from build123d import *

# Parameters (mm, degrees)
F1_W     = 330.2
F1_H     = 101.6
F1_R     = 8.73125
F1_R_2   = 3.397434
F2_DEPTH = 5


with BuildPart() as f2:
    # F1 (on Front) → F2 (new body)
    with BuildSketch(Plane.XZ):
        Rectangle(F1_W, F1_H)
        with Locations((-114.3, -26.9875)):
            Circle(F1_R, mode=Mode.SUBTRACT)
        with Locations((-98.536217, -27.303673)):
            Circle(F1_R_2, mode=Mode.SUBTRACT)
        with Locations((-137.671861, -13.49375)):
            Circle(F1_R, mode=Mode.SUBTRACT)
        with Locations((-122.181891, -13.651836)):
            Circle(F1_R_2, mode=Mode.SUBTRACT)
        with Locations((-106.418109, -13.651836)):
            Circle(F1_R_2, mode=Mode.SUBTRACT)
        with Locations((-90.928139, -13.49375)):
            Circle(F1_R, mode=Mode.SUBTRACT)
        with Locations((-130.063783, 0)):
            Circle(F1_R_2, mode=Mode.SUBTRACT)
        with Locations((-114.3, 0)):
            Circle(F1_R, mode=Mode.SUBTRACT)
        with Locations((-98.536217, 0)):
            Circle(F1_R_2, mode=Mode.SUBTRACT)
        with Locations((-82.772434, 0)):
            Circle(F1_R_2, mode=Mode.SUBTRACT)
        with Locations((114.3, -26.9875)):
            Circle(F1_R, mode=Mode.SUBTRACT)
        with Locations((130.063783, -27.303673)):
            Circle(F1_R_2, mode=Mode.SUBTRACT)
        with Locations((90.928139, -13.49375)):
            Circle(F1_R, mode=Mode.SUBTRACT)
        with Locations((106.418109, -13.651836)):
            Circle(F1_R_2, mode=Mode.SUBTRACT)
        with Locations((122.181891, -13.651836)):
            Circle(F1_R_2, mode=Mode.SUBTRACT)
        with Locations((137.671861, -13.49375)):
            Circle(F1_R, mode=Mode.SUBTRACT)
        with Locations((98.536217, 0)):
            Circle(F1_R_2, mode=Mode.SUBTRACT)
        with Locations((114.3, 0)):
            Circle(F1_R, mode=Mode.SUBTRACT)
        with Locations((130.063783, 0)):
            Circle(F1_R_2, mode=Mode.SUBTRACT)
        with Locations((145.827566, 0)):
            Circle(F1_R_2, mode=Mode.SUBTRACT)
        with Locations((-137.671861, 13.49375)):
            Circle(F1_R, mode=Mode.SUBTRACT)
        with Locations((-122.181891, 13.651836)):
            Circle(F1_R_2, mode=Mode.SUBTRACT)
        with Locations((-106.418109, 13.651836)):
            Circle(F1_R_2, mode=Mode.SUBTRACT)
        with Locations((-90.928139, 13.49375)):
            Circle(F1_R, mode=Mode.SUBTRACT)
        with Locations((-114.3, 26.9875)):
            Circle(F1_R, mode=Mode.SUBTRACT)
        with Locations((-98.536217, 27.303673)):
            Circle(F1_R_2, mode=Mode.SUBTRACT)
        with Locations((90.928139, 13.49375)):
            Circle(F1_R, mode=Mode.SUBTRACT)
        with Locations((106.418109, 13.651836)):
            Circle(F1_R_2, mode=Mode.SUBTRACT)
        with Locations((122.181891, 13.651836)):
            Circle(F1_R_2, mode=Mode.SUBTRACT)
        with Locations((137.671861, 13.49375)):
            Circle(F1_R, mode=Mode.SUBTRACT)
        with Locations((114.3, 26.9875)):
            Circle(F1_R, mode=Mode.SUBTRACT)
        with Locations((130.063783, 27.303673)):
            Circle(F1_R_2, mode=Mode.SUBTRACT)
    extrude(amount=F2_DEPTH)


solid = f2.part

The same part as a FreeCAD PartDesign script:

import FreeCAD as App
import Part
import Sketcher
Q = App.Units.Quantity


def add_polygon(sketch, points):
    """Adds a closed chain of lines whose ends are joined by coincident constraints."""
    first, n = sketch.GeometryCount, len(points)
    for a, b in zip(points, points[1:] + points[:1]):
        sketch.addGeometry(Part.LineSegment(App.Vector(*a, 0), App.Vector(*b, 0)), False)
    for i in range(n):
        sketch.addConstraint(Sketcher.Constraint("Coincident", first + i, 2, first + (i + 1) % n, 1))

doc = App.newDocument("Part")
params = doc.addObject("Spreadsheet::Sheet", "Params")
for row, (alias, value) in enumerate([
    ("sketch1_width", "13 in"),
    ("sketch1_height", "4 in"),
    ("sketch1_diameter", "0.6875 in"),
    ("pad1_length", "5 mm"),
], start=1):
    params.set(f"A{row}", alias)
    params.set(f"B{row}", "=" + value)
    params.setAlias(f"B{row}", alias)

body = doc.addObject("PartDesign::Body", "Body")

# Sketch on XZ plane
sketch1 = body.newObject("Sketcher::SketchObject", "Sketch")
sketch1.AttachmentSupport = (doc.getObject("XZ_Plane"), [""])
sketch1.MapMode = "FlatFace"
add_polygon(sketch1, [(-165.1, 50.8), (-165.1, -50.8), (165.1, -50.8), (165.1, 50.8)])  # lines 0-3
sketch1.addGeometry(Part.Circle(App.Vector(-114.3, -27, 0), App.Vector(0, 0, 1), 8.7), False)  # 4
sketch1.addGeometry(Part.Circle(App.Vector(-98.5, -27.3, 0), App.Vector(0, 0, 1), 3.4), False)  # 5
sketch1.addGeometry(Part.Circle(App.Vector(-137.7, -13.5, 0), App.Vector(0, 0, 1), 8.7), False)  # 6
sketch1.addGeometry(Part.Circle(App.Vector(-122.2, -13.7, 0), App.Vector(0, 0, 1), 3.4), False)  # 7
sketch1.addGeometry(Part.Circle(App.Vector(-106.4, -13.7, 0), App.Vector(0, 0, 1), 3.4), False)  # 8
sketch1.addGeometry(Part.Circle(App.Vector(-90.9, -13.5, 0), App.Vector(0, 0, 1), 8.7), False)  # 9
sketch1.addGeometry(Part.Circle(App.Vector(114.3, -27, 0), App.Vector(0, 0, 1), 8.7), False)  # 10
sketch1.addGeometry(Part.Circle(App.Vector(130.1, -27.3, 0), App.Vector(0, 0, 1), 3.4), False)  # 11
sketch1.addGeometry(Part.Circle(App.Vector(90.9, -13.5, 0), App.Vector(0, 0, 1), 8.7), False)  # 12
sketch1.addGeometry(Part.Circle(App.Vector(106.4, -13.7, 0), App.Vector(0, 0, 1), 3.4), False)  # 13
sketch1.addGeometry(Part.Circle(App.Vector(122.2, -13.7, 0), App.Vector(0, 0, 1), 3.4), False)  # 14
sketch1.addGeometry(Part.Circle(App.Vector(137.7, -13.5, 0), App.Vector(0, 0, 1), 8.7), False)  # 15
sketch1.addGeometry(Part.Circle(App.Vector(-130.1, 0, 0), App.Vector(0, 0, 1), 3.4), False)  # 16
sketch1.addGeometry(Part.Circle(App.Vector(-114.3, 0, 0), App.Vector(0, 0, 1), 8.7), False)  # 17
sketch1.addGeometry(Part.Circle(App.Vector(-98.5, 0, 0), App.Vector(0, 0, 1), 3.4), False)  # 18
sketch1.addGeometry(Part.Circle(App.Vector(-82.8, 0, 0), App.Vector(0, 0, 1), 3.4), False)  # 19
sketch1.addGeometry(Part.Circle(App.Vector(-137.7, 13.5, 0), App.Vector(0, 0, 1), 8.7), False)  # 20
sketch1.addGeometry(Part.Circle(App.Vector(-122.2, 13.7, 0), App.Vector(0, 0, 1), 3.4), False)  # 21
sketch1.addGeometry(Part.Circle(App.Vector(-106.4, 13.7, 0), App.Vector(0, 0, 1), 3.4), False)  # 22
sketch1.addGeometry(Part.Circle(App.Vector(-90.9, 13.5, 0), App.Vector(0, 0, 1), 8.7), False)  # 23
sketch1.addGeometry(Part.Circle(App.Vector(-114.3, 27, 0), App.Vector(0, 0, 1), 8.7), False)  # 24
sketch1.addGeometry(Part.Circle(App.Vector(-98.5, 27.3, 0), App.Vector(0, 0, 1), 3.4), False)  # 25
sketch1.addGeometry(Part.Circle(App.Vector(98.5, 0, 0), App.Vector(0, 0, 1), 3.4), False)  # 26
sketch1.addGeometry(Part.Circle(App.Vector(114.3, 0, 0), App.Vector(0, 0, 1), 8.7), False)  # 27
sketch1.addGeometry(Part.Circle(App.Vector(130.1, 0, 0), App.Vector(0, 0, 1), 3.4), False)  # 28
sketch1.addGeometry(Part.Circle(App.Vector(145.8, 0, 0), App.Vector(0, 0, 1), 3.4), False)  # 29
sketch1.addGeometry(Part.Circle(App.Vector(90.9, 13.5, 0), App.Vector(0, 0, 1), 8.7), False)  # 30
sketch1.addGeometry(Part.Circle(App.Vector(106.4, 13.7, 0), App.Vector(0, 0, 1), 3.4), False)  # 31
sketch1.addGeometry(Part.Circle(App.Vector(122.2, 13.7, 0), App.Vector(0, 0, 1), 3.4), False)  # 32
sketch1.addGeometry(Part.Circle(App.Vector(137.7, 13.5, 0), App.Vector(0, 0, 1), 8.7), False)  # 33
sketch1.addGeometry(Part.Circle(App.Vector(114.3, 27, 0), App.Vector(0, 0, 1), 8.7), False)  # 34
sketch1.addGeometry(Part.Circle(App.Vector(130.1, 27.3, 0), App.Vector(0, 0, 1), 3.4), False)  # 35
sketch1.addConstraint([
    Sketcher.Constraint("Vertical", 0),
    Sketcher.Constraint("Horizontal", 1),
    Sketcher.Constraint("Vertical", 2),
    Sketcher.Constraint("Horizontal", 3),
    Sketcher.Constraint("Equal", 4, 6),
    Sketcher.Constraint("Equal", 5, 7),
    Sketcher.Constraint("Equal", 7, 8),
    Sketcher.Constraint("Equal", 6, 9),
    Sketcher.Constraint("Equal", 9, 10),
    Sketcher.Constraint("Equal", 8, 11),
    Sketcher.Constraint("Equal", 10, 12),
    Sketcher.Constraint("Equal", 11, 13),
    Sketcher.Constraint("Equal", 13, 14),
    Sketcher.Constraint("Equal", 12, 15),
    Sketcher.Constraint("Equal", 14, 16),
    Sketcher.Constraint("Equal", 15, 17),
    Sketcher.Constraint("Equal", 16, 18),
    Sketcher.Constraint("Equal", 18, 19),
    Sketcher.Constraint("Equal", 17, 20),
    Sketcher.Constraint("Equal", 19, 21),
    Sketcher.Constraint("Equal", 21, 22),
    Sketcher.Constraint("Equal", 20, 23),
    Sketcher.Constraint("Equal", 23, 24),
    Sketcher.Constraint("Equal", 22, 25),
    Sketcher.Constraint("Equal", 25, 26),
    Sketcher.Constraint("Equal", 24, 27),
    Sketcher.Constraint("Equal", 26, 28),
    Sketcher.Constraint("Equal", 28, 29),
    Sketcher.Constraint("Equal", 27, 30),
    Sketcher.Constraint("Equal", 29, 31),
    Sketcher.Constraint("Equal", 31, 32),
    Sketcher.Constraint("Equal", 30, 33),
    Sketcher.Constraint("Equal", 33, 34),
    Sketcher.Constraint("Equal", 32, 35),
    Sketcher.Constraint("Symmetric", 15, 3, 20, 3, -1, 1),
    Sketcher.Constraint("Symmetric", 14, 3, 21, 3, -1, 1),
    Sketcher.Constraint("Symmetric", 13, 3, 22, 3, -1, 1),
    Sketcher.Constraint("Symmetric", 12, 3, 23, 3, -1, 1),
    Sketcher.Constraint("Symmetric", 10, 3, 24, 3, -1, 1),
    Sketcher.Constraint("Symmetric", 18, 3, 26, 3, -1, 1),
    Sketcher.Constraint("Symmetric", 17, 3, 27, 3, -1, 1),
    Sketcher.Constraint("Symmetric", 16, 3, 28, 3, -1, 1),
    Sketcher.Constraint("Symmetric", 9, 3, 30, 3, -1, 1),
    Sketcher.Constraint("Symmetric", 8, 3, 31, 3, -1, 1),
    Sketcher.Constraint("Symmetric", 7, 3, 32, 3, -1, 1),
    Sketcher.Constraint("Symmetric", 6, 3, 33, 3, -1, 1),
    Sketcher.Constraint("Symmetric", 4, 3, 34, 3, -1, 1),
    Sketcher.Constraint("Symmetric", 0, 2, 2, 2, -1, 1),
    Sketcher.Constraint("Symmetric", 4, 3, 10, 3, -2),
    Sketcher.Constraint("Symmetric", 9, 3, 12, 3, -2),
    Sketcher.Constraint("Symmetric", 8, 3, 13, 3, -2),
    Sketcher.Constraint("Symmetric", 7, 3, 14, 3, -2),
    Sketcher.Constraint("Symmetric", 6, 3, 15, 3, -2),
    Sketcher.Constraint("Symmetric", 5, 3, 25, 3, -1),
    Sketcher.Constraint("Symmetric", 11, 3, 35, 3, -1),
    Sketcher.Constraint("PointOnObject", 16, 3, -1),
    Sketcher.Constraint("PointOnObject", 17, 3, -1),
    Sketcher.Constraint("PointOnObject", 18, 3, -1),
    Sketcher.Constraint("PointOnObject", 19, 3, -1),
    Sketcher.Constraint("PointOnObject", 29, 3, -1),
    Sketcher.Constraint("Horizontal", 7, 3, 8, 3),
    Sketcher.Constraint("Horizontal", 6, 3, 9, 3),
    Sketcher.Constraint("Horizontal", 5, 3, 11, 3),
    Sketcher.Constraint("Vertical", 4, 3, 17, 3),
    Sketcher.Constraint("Vertical", 5, 3, 18, 3),
    Sketcher.Constraint("Vertical", 11, 3, 28, 3),
    Sketcher.Constraint("DistanceX", 1, 1, 1, 2, Q("13 in")),
    Sketcher.Constraint("DistanceY", 0, 2, 0, 1, Q("4 in")),
    Sketcher.Constraint("Diameter", 4, Q("0.6875 in")),
    Sketcher.Constraint("DistanceX", 4, 3, 10, 3, Q("9 in")),
    Sketcher.Constraint("DistanceX", 5, 3, 11, 3, Q("9 in")),
    Sketcher.Constraint("DistanceY", 4, 3, -1, 1, Q("1.0625 in")),
    Sketcher.Constraint("DistanceY", 6, 3, -1, 1, Q("0.53125 in")),
    Sketcher.Constraint("Diameter", 5, Q("6.794868 mm")),
    Sketcher.Constraint("DistanceX", 6, 3, -1, 1, Q("137.671861 mm")),
    Sketcher.Constraint("DistanceX", 7, 3, -1, 1, Q("122.181891 mm")),
    Sketcher.Constraint("DistanceX", 8, 3, -1, 1, Q("106.418109 mm")),
    Sketcher.Constraint("DistanceX", 9, 3, -1, 1, Q("90.928139 mm")),
    Sketcher.Constraint("DistanceX", 9, 3, 11, 3, Q("220.991922 mm")),
    Sketcher.Constraint("DistanceY", 7, 3, 21, 3, Q("27.303672 mm")),
    Sketcher.Constraint("DistanceY", 5, 3, -1, 1, Q("27.303673 mm")),
    Sketcher.Constraint("DistanceX", 19, 3, -1, 1, Q("82.772434 mm")),
    Sketcher.Constraint("DistanceX", -1, 1, 29, 3, Q("145.827566 mm")),
])
sketch1.setExpression("Constraints[70]", "Params.sketch1_width")
sketch1.setExpression("Constraints[71]", "Params.sketch1_height")
sketch1.setExpression("Constraints[72]", "Params.sketch1_diameter")
pad1 = body.newObject("PartDesign::Pad", "Pad")
pad1.Profile = sketch1
pad1.setExpression("Length", "Params.pad1_length")

doc.recompute()
